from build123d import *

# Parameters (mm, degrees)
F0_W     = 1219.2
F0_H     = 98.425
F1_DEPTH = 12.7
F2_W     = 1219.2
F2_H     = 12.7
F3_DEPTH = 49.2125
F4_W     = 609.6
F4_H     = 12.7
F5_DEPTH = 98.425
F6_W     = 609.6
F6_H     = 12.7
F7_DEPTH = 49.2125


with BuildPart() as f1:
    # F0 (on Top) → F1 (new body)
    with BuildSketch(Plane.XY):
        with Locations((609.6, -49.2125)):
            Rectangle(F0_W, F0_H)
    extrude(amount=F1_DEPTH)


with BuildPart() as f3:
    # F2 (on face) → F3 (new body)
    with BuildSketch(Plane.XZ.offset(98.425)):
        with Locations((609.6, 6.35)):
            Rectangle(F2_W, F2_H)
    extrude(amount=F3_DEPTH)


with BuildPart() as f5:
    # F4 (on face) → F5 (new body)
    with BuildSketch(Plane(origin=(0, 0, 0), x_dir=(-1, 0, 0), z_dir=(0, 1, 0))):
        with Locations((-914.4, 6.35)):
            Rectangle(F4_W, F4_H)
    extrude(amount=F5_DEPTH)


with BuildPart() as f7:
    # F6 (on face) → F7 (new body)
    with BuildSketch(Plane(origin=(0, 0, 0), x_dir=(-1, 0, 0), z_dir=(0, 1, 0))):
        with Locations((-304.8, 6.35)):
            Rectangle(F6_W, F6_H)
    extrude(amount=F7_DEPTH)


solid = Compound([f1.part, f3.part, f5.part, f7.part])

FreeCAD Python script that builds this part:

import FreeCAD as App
import Part
import Sketcher

V = App.Vector
Q = App.Units.Quantity


def add_polygon(sketch, points):
    """Adds a closed chain of lines whose ends are joined by coincident constraints."""
    first, n = sketch.GeometryCount, len(points)
    for a, b in zip(points, points[1:] + points[:1]):
        sketch.addGeometry(Part.LineSegment(App.Vector(*a, 0), App.Vector(*b, 0)), False)
    for i in range(n):
        sketch.addConstraint(Sketcher.Constraint("Coincident", first + i, 2, first + (i + 1) % n, 1))

doc = App.newDocument("Part")
params = doc.addObject("Spreadsheet::Sheet", "Params")
for row, (alias, value) in enumerate([
    ("sketch1_width", "48 in"),
    ("sketch1_height", "3.875 in"),
    ("pad1_length", "0.5 in"),
    ("sketch2_width", "48 in"),
    ("sketch2_height", "0.5 in"),
    ("pad2_length", "1.9375 in"),
    ("sketch3_width", "24 in"),
    ("sketch3_height", "0.5 in"),
    ("pad3_length", "3.875 in"),
    ("sketch4_width", "24 in"),
    ("sketch4_height", "0.5 in"),
    ("pad4_length", "1.9375 in"),
], start=1):
    params.set(f"A{row}", alias)
    params.set(f"B{row}", "=" + value)
    params.setAlias(f"B{row}", alias)

body = doc.addObject("PartDesign::Body", "Body")

# Sketch on XY plane
sketch1 = body.newObject("Sketcher::SketchObject", "Sketch")
sketch1.AttachmentSupport = (doc.getObject("XY_Plane"), [""])
sketch1.MapMode = "FlatFace"
add_polygon(sketch1, [(0, 0), (0, -98), (1219, -98), (1219, 0)])  # lines 0-3
sketch1.addConstraint([
    Sketcher.Constraint("Vertical", 0),
    Sketcher.Constraint("Horizontal", 1),
    Sketcher.Constraint("Vertical", 2),
    Sketcher.Constraint("Horizontal", 3),
    Sketcher.Constraint("Coincident", 3, 2, -1, 1),
    Sketcher.Constraint("DistanceX", 1, 1, 1, 2, Q("48 in")),
    Sketcher.Constraint("DistanceY", 0, 2, 0, 1, Q("3.875 in")),
])
sketch1.setExpression("Constraints[9]", "Params.sketch1_width")
sketch1.setExpression("Constraints[10]", "Params.sketch1_height")
pad1 = body.newObject("PartDesign::Pad", "Pad")
pad1.Profile = sketch1
pad1.setExpression("Length", "Params.pad1_length")
body2 = doc.addObject("PartDesign::Body", "Body001")

# Sketch on XZ plane
sketch2 = body2.newObject("Sketcher::SketchObject", "Sketch001")
sketch2.AttachmentSupport = (doc.getObject("XZ_Plane001"), [""])
sketch2.MapMode = "FlatFace"
sketch2.AttachmentOffset = App.Placement(V(0, 0, 3.875 * 25.4), App.Rotation())
add_polygon(sketch2, [(0, 13), (0, 0), (1219, 0), (1219, 13)])  # lines 0-3
sketch2.addConstraint([
    Sketcher.Constraint("Vertical", 0),
    Sketcher.Constraint("Horizontal", 1),
    Sketcher.Constraint("Vertical", 2),
    Sketcher.Constraint("Horizontal", 3),
    Sketcher.Constraint("Coincident", 0, 2, -1, 1),
    Sketcher.Constraint("DistanceX", 1, 1, 1, 2, Q("48 in")),
    Sketcher.Constraint("DistanceY", 0, 2, 0, 1, Q("0.5 in")),
])
sketch2.setExpression("Constraints[9]", "Params.sketch2_width")
sketch2.setExpression("Constraints[10]", "Params.sketch2_height")
pad2 = body2.newObject("PartDesign::Pad", "Pad001")
pad2.Profile = sketch2
pad2.setExpression("Length", "Params.pad2_length")
body3 = doc.addObject("PartDesign::Body", "Body002")

# Sketch on XZ plane
sketch3 = body3.newObject("Sketcher::SketchObject", "Sketch002")
sketch3.AttachmentSupport = (doc.getObject("XZ_Plane002"), [""])
sketch3.MapMode = "FlatFace"
add_polygon(sketch3, [(1219, 13), (1219, 0), (610, 0), (610, 13)])  # lines 0-3
sketch3.addConstraint([
    Sketcher.Constraint("Vertical", 0),
    Sketcher.Constraint("Horizontal", 1),
    Sketcher.Constraint("Vertical", 2),
    Sketcher.Constraint("Horizontal", 3),
    Sketcher.Constraint("PointOnObject", 0, 2, -1),
    Sketcher.Constraint("DistanceX", 1, 2, 1, 1, Q("24 in")),
    Sketcher.Constraint("DistanceY", 0, 2, 0, 1, Q("0.5 in")),
    Sketcher.Constraint("DistanceX", -1, 1, 0, 2, Q("48 in")),
])
sketch3.setExpression("Constraints[9]", "Params.sketch3_width")
sketch3.setExpression("Constraints[10]", "Params.sketch3_height")
pad3 = body3.newObject("PartDesign::Pad", "Pad002")
pad3.Profile = sketch3
pad3.setExpression("Length", "Params.pad3_length")
pad3.Reversed = True
body4 = doc.addObject("PartDesign::Body", "Body003")

# Sketch on XZ plane
sketch4 = body4.newObject("Sketcher::SketchObject", "Sketch003")
sketch4.AttachmentSupport = (doc.getObject("XZ_Plane003"), [""])
sketch4.MapMode = "FlatFace"
add_polygon(sketch4, [(610, 13), (610, 0), (0, 0), (0, 13)])  # lines 0-3
sketch4.addConstraint([
    Sketcher.Constraint("Vertical", 0),
    Sketcher.Constraint("Horizontal", 1),
    Sketcher.Constraint("Vertical", 2),
    Sketcher.Constraint("Horizontal", 3),
    Sketcher.Constraint("Coincident", 1, 2, -1, 1),
    Sketcher.Constraint("DistanceX", 1, 2, 1, 1, Q("24 in")),
    Sketcher.Constraint("DistanceY", 0, 2, 0, 1, Q("0.5 in")),
])
sketch4.setExpression("Constraints[9]", "Params.sketch4_width")
sketch4.setExpression("Constraints[10]", "Params.sketch4_height")
pad4 = body4.newObject("PartDesign::Pad", "Pad003")
pad4.Profile = sketch4
pad4.setExpression("Length", "Params.pad4_length")
pad4.Reversed = True

doc.recompute()
